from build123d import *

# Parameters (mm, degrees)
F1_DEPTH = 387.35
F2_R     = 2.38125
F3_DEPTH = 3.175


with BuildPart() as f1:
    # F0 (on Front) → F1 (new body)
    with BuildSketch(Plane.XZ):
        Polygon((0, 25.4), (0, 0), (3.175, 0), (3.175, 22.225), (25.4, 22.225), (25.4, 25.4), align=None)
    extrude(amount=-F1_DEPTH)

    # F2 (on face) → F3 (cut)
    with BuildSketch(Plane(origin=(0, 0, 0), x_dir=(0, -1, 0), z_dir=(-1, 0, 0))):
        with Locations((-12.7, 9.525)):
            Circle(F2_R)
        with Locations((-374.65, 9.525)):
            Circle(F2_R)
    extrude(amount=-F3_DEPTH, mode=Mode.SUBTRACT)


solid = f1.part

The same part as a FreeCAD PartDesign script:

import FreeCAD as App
import Part
import Sketcher
Q = App.Units.Quantity

doc = App.newDocument("Part")
body = doc.addObject("PartDesign::Body", "Body")

# Sketch on XZ plane
sketch1 = body.newObject("Sketcher::SketchObject", "Sketch")
sketch1.AttachmentSupport = (doc.getObject("XZ_Plane"), [""])
sketch1.MapMode = "FlatFace"
sketch1.addGeometry([
    Part.LineSegment(App.Vector(0, 25.4, 0), App.Vector(0, 0, 0)),  # 0
    Part.LineSegment(App.Vector(0, 0, 0), App.Vector(3.2, 0, 0)),  # 1
    Part.LineSegment(App.Vector(3.2, 0, 0), App.Vector(3.2, 22.2, 0)),  # 2
    Part.LineSegment(App.Vector(3.2, 22.2, 0), App.Vector(25.4, 22.2, 0)),  # 3
    Part.LineSegment(App.Vector(25.4, 22.2, 0), App.Vector(25.4, 25.4, 0)),  # 4
    Part.LineSegment(App.Vector(25.4, 25.4, 0), App.Vector(0, 25.4, 0)),  # 5
], False)
sketch1.addConstraint([
    Sketcher.Constraint("Coincident", 0, 2, 1, 1),
    Sketcher.Constraint("Coincident", 1, 2, 2, 1),
    Sketcher.Constraint("Coincident", 2, 2, 3, 1),
    Sketcher.Constraint("Coincident", 3, 2, 4, 1),
    Sketcher.Constraint("Coincident", 4, 2, 5, 1),
    Sketcher.Constraint("Coincident", 5, 2, 0, 1),
    Sketcher.Constraint("Vertical", 0),
    Sketcher.Constraint("Horizontal", 1),
    Sketcher.Constraint("Vertical", 2),
    Sketcher.Constraint("Horizontal", 3),
    Sketcher.Constraint("Vertical", 4),
    Sketcher.Constraint("Horizontal", 5),
    Sketcher.Constraint("Coincident", 0, 2, -1, 1),
    Sketcher.Constraint("Equal", 5, 0),
    Sketcher.Constraint("Equal", 3, 2),
    Sketcher.Constraint("DistanceX", 5, 2, 5, 1, Q("1 in")),
    Sketcher.Constraint("DistanceX", 1, 1, 1, 2, Q("0.125 in")),
])
pad1 = body.newObject("PartDesign::Pad", "Pad")
pad1.Profile = sketch1
pad1.Length = Q("15.25 in")
pad1.Reversed = True

# Sketch on YZ plane
sketch2 = body.newObject("Sketcher::SketchObject", "Sketch001")
sketch2.AttachmentSupport = (doc.getObject("YZ_Plane"), [""])
sketch2.MapMode = "FlatFace"
sketch2.addGeometry([
    Part.Circle(App.Vector(12.7, 9.5, 0), App.Vector(0, 0, 1), 2.4),
    Part.Circle(App.Vector(374.6, 9.5, 0), App.Vector(0, 0, 1), 2.4),
], False)
sketch2.addConstraint([
    Sketcher.Constraint("Equal", 0, 1),
    Sketcher.Constraint("Horizontal", 0, 3, 1, 3),
    Sketcher.Constraint("Diameter", 0, Q("0.1875 in")),
    Sketcher.Constraint("DistanceX", -1, 1, 0, 3, Q("0.5 in")),
    Sketcher.Constraint("DistanceX", -1, 1, 1, 3, Q("14.75 in")),
    Sketcher.Constraint("DistanceY", -1, 1, 0, 3, Q("0.375 in")),
])
pocket1 = body.newObject("PartDesign::Pocket", "Pocket")
pocket1.Profile = sketch2
pocket1.Length = Q("0.125 in")
pocket1.Reversed = True

doc.recompute()
